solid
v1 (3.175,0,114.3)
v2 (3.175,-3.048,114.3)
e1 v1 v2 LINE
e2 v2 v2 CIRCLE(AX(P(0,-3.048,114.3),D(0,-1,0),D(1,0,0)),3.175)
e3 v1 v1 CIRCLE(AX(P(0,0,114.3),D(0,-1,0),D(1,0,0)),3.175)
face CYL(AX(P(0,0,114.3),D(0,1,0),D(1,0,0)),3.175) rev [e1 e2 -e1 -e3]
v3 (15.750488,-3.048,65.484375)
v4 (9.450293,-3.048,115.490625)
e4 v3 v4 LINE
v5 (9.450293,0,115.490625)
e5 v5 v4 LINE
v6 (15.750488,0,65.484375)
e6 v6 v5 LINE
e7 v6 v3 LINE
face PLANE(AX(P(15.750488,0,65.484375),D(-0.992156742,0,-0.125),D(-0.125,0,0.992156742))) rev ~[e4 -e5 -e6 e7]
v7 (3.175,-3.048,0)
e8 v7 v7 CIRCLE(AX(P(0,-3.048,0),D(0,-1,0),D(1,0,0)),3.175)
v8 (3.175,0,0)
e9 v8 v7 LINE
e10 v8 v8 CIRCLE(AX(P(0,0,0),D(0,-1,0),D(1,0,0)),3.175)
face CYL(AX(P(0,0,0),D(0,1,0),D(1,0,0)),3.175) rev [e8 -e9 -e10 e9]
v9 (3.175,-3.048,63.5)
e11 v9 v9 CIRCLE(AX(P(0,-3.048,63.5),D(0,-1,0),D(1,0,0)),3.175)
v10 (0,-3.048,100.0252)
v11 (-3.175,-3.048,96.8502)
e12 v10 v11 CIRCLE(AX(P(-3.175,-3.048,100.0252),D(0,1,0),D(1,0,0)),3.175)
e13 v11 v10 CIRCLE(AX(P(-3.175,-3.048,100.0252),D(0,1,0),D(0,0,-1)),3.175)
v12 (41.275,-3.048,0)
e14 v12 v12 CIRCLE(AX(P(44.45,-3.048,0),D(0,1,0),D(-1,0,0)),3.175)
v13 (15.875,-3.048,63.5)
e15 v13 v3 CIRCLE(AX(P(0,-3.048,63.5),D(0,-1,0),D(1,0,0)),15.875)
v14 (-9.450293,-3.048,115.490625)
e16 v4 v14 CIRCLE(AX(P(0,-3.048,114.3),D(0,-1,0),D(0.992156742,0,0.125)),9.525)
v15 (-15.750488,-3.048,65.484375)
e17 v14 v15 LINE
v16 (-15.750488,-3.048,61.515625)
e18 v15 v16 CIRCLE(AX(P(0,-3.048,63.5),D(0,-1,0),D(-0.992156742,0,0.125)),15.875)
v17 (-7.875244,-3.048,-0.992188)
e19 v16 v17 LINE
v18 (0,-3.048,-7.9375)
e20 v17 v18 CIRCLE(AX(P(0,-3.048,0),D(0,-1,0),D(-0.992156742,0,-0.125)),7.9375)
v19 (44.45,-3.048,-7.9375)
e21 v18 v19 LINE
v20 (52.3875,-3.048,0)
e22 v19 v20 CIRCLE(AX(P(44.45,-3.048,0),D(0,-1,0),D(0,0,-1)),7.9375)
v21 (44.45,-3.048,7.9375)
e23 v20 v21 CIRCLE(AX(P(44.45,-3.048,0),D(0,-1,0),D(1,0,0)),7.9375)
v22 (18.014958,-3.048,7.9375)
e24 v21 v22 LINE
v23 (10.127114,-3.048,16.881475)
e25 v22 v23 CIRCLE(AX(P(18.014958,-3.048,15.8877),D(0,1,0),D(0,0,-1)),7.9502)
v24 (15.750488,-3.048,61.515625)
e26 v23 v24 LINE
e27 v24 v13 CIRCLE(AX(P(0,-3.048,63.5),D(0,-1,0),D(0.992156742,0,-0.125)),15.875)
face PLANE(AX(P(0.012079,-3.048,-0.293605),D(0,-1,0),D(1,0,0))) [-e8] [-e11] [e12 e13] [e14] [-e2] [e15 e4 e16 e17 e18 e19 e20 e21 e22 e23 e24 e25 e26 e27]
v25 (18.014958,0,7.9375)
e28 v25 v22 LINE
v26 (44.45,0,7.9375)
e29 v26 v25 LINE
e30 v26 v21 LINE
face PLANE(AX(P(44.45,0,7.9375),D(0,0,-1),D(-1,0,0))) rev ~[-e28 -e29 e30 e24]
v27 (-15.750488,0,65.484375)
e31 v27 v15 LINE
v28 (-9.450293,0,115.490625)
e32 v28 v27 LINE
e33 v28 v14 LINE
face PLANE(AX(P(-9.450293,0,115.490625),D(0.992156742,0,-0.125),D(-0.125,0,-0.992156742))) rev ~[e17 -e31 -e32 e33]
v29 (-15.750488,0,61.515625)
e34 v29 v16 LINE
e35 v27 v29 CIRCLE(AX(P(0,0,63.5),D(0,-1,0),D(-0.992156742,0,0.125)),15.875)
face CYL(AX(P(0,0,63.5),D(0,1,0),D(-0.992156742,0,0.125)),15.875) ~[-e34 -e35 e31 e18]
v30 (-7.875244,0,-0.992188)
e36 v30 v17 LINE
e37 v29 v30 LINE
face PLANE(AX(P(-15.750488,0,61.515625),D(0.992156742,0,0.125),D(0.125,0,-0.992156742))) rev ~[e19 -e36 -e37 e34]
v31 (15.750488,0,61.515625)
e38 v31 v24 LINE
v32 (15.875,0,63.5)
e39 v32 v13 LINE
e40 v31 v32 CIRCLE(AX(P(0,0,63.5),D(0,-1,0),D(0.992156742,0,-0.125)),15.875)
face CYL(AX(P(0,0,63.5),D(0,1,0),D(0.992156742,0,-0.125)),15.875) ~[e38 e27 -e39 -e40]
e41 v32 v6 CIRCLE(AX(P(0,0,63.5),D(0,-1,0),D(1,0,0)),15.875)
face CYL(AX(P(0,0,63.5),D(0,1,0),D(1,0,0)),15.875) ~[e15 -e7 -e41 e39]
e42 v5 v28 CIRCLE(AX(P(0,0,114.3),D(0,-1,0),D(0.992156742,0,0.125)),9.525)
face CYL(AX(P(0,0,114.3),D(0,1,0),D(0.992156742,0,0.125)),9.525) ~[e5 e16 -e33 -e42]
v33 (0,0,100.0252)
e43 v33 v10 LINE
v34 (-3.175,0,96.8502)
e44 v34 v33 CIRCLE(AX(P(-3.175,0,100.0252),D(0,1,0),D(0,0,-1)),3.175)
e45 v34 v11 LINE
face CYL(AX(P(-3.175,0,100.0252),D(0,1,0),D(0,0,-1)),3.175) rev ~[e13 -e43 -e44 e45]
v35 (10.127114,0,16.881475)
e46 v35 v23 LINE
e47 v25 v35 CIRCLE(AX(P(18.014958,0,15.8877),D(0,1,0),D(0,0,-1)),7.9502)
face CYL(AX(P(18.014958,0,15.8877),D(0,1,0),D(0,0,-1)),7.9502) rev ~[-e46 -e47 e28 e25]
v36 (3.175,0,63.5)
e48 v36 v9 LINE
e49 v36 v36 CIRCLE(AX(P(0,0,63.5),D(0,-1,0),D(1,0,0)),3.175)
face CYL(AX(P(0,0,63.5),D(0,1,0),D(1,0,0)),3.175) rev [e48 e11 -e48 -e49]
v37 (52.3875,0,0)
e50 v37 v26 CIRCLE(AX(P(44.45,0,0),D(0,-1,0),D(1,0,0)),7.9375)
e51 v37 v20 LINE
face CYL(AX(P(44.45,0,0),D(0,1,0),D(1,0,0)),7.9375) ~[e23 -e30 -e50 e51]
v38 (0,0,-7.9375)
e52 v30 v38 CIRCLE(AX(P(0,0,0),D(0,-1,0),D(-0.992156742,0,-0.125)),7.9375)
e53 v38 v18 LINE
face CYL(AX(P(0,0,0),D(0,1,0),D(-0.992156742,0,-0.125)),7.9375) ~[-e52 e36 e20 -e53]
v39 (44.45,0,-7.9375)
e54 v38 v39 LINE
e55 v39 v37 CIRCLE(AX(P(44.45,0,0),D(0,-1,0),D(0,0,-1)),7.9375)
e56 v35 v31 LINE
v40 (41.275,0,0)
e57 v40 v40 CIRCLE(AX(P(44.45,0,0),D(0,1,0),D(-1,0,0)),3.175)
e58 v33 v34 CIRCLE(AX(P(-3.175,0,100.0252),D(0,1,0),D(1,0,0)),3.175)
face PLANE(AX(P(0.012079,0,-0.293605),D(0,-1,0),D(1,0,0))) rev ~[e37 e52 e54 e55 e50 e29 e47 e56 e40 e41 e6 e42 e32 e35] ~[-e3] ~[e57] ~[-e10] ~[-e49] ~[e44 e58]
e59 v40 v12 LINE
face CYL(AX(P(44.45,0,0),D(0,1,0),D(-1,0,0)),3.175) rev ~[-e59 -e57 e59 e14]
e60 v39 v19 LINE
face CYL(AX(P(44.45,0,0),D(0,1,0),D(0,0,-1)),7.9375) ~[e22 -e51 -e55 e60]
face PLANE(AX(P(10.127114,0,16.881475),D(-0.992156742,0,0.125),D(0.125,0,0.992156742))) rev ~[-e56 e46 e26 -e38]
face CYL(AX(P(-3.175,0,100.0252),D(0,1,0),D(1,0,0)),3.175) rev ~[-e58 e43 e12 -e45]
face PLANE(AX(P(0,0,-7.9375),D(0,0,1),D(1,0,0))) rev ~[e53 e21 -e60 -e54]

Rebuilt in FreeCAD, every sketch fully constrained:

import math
import FreeCAD as App
import Part
import Sketcher
Q = App.Units.Quantity

doc = App.newDocument("Part")
body = doc.addObject("PartDesign::Body", "Body")

# Sketch on XZ plane
sketch1 = body.newObject("Sketcher::SketchObject", "Sketch")
sketch1.AttachmentSupport = (doc.getObject("XZ_Plane"), [""])
sketch1.MapMode = "FlatFace"
sketch1.addGeometry([
    Part.LineSegment(App.Vector(44.5, 7.9, 0), App.Vector(18, 7.9, 0)),  # 0
    Part.ArcOfCircle(Part.Circle(App.Vector(18, 15.9, 0), App.Vector(0, 0, 1), 8), math.radians(173), math.radians(270)),  # 1
    Part.LineSegment(App.Vector(10.1, 16.9, 0), App.Vector(15.8, 61.5, 0)),  # 2
    Part.ArcOfCircle(Part.Circle(App.Vector(0, 63.5, 0), App.Vector(0, 0, 1), 15.9), math.radians(-7.18), math.radians(0)),  # 3
    Part.ArcOfCircle(Part.Circle(App.Vector(0, 63.5, 0), App.Vector(0, 0, 1), 15.9), math.radians(0), math.radians(7.18)),  # 4
    Part.LineSegment(App.Vector(15.8, 65.5, 0), App.Vector(9.5, 115.5, 0)),  # 5
    Part.ArcOfCircle(Part.Circle(App.Vector(0, 114.3, 0), App.Vector(0, 0, 1), 9.5), math.radians(7), math.radians(173)),  # 6
    Part.LineSegment(App.Vector(-9.5, 115.5, 0), App.Vector(-15.8, 65.5, 0)),  # 7
    Part.ArcOfCircle(Part.Circle(App.Vector(0, 63.5, 0), App.Vector(0, 0, 1), 15.9), math.radians(172.82), math.radians(187.18)),  # 8
    Part.LineSegment(App.Vector(-15.8, 61.5, 0), App.Vector(-7.9, -1, 0)),  # 9
    Part.ArcOfCircle(Part.Circle(App.Vector(0, 0, 0), App.Vector(0, 0, 1), 7.9), math.radians(-173), math.radians(-90)),  # 10
    Part.LineSegment(App.Vector(0, -7.9, 0), App.Vector(44.5, -7.9, 0)),  # 11
    Part.ArcOfCircle(Part.Circle(App.Vector(44.5, 0, 0), App.Vector(0, 0, 1), 7.9), math.radians(-90), math.radians(0)),  # 12
    Part.ArcOfCircle(Part.Circle(App.Vector(44.5, 0, 0), App.Vector(0, 0, 1), 7.9), math.radians(0), math.radians(90)),  # 13
    Part.Circle(App.Vector(0, 0, 0), App.Vector(0, 0, 1), 3.2),  # 14
    Part.Circle(App.Vector(44.5, 0, 0), App.Vector(0, 0, 1), 3.2),  # 15
    Part.Circle(App.Vector(0, 63.5, 0), App.Vector(0, 0, 1), 3.2),  # 16
    Part.ArcOfCircle(Part.Circle(App.Vector(-3.2, 100, 0), App.Vector(0, 0, 1), 3.2), math.radians(0), math.radians(270)),  # 17
    Part.ArcOfCircle(Part.Circle(App.Vector(-3.2, 100, 0), App.Vector(0, 0, 1), 3.2), math.radians(-90), math.radians(0)),  # 18
    Part.Circle(App.Vector(0, 114.3, 0), App.Vector(0, 0, 1), 3.2),  # 19
], False)
sketch1.addConstraint([
    Sketcher.Constraint("Tangent", 0, 2, 1, 2),
    Sketcher.Constraint("Tangent", 1, 1, 2, 1),
    Sketcher.Constraint("Tangent", 2, 2, 3, 1),
    Sketcher.Constraint("Tangent", 3, 2, 4, 1),
    Sketcher.Constraint("Tangent", 4, 2, 5, 1),
    Sketcher.Constraint("Tangent", 5, 2, 6, 1),
    Sketcher.Constraint("Tangent", 6, 2, 7, 1),
    Sketcher.Constraint("Tangent", 7, 2, 8, 1),
    Sketcher.Constraint("Tangent", 8, 2, 9, 1),
    Sketcher.Constraint("Tangent", 9, 2, 10, 1),
    Sketcher.Constraint("Tangent", 10, 2, 11, 1),
    Sketcher.Constraint("Tangent", 11, 2, 12, 1),
    Sketcher.Constraint("Tangent", 12, 2, 13, 1),
    Sketcher.Constraint("Tangent", 13, 2, 0, 1),
    Sketcher.Constraint("Tangent", 17, 1, 18, 2),
    Sketcher.Constraint("Coincident", 18, 1, 17, 2),
    Sketcher.Constraint("Horizontal", 0),
    Sketcher.Constraint("Horizontal", 11),
    Sketcher.Constraint("Coincident", 10, 3, -1, 1),
    Sketcher.Constraint("Coincident", 14, 3, -1, 1),
    Sketcher.Constraint("Coincident", 8, 3, 3, 3),
    Sketcher.Constraint("Coincident", 15, 3, 12, 3),
    Sketcher.Constraint("Coincident", 16, 3, 3, 3),
    Sketcher.Constraint("Coincident", 19, 3, 6, 3),
    Sketcher.Constraint("Equal", 3, 4),
    Sketcher.Constraint("Equal", 4, 8),
    Sketcher.Constraint("Equal", 10, 12),
    Sketcher.Constraint("Equal", 12, 13),
    Sketcher.Constraint("Equal", 14, 15),
    Sketcher.Constraint("Equal", 15, 16),
    Sketcher.Constraint("Equal", 16, 17),
    Sketcher.Constraint("Equal", 18, 19),
    Sketcher.Constraint("Symmetric", 5, 2, 6, 2, -2),
    Sketcher.Constraint("PointOnObject", 12, 2, -1),
    Sketcher.Constraint("PointOnObject", 17, 1, -2),
    Sketcher.Constraint("Parallel", 2, 7),
    Sketcher.Constraint("Parallel", 5, 9),
    Sketcher.Constraint("Horizontal", 16, 3, 3, 2),
    Sketcher.Constraint("Horizontal", 18, 3, 17, 1),
    Sketcher.Constraint("Vertical", 17, 3, 18, 1),
    Sketcher.Constraint("Diameter", 14, Q("0.25 in")),
    Sketcher.Constraint("Radius", 1, Q("0.313 in")),
    Sketcher.Constraint("Radius", 3, Q("0.625 in")),
    Sketcher.Constraint("Radius", 6, Q("0.375 in")),
    Sketcher.Constraint("Radius", 10, Q("0.3125 in")),
    Sketcher.Constraint("DistanceY", 3, 3, 6, 3, Q("2 in")),
    Sketcher.Constraint("DistanceX", 11, 1, 11, 2, Q("1.75 in")),
    Sketcher.Constraint("DistanceY", -1, 1, 17, 3, Q("3.938 in")),
])
pad1 = body.newObject("PartDesign::Pad", "Pad")
pad1.Profile = sketch1
pad1.Length = Q("0.12 in")

doc.recompute()
